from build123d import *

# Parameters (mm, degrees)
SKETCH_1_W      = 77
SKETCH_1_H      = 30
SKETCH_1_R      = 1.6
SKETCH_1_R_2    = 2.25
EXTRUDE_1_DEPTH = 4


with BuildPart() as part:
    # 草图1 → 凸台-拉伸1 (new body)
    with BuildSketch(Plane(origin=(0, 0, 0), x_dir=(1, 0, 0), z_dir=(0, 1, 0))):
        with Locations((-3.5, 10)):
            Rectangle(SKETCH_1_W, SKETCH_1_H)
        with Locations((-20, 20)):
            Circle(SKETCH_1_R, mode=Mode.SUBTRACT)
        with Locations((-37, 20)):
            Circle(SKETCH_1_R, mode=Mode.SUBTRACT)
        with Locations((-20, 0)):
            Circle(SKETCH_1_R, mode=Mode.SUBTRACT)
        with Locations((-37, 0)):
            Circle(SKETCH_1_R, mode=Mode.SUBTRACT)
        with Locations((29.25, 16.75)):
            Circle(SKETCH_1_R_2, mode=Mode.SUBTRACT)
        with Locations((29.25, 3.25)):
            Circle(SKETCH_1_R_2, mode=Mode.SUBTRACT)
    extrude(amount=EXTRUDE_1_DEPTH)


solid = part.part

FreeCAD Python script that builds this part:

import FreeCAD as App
import Part
import Sketcher
from FreeCAD import Vector
Q = App.Units.Quantity

doc = App.newDocument("Part")
body = doc.addObject("PartDesign::Body", "Body")

# Sketch on XZ plane
sketch1 = body.newObject("Sketcher::SketchObject", "Sketch")
sketch1.AttachmentSupport = (doc.getObject("XZ_Plane"), [""])
sketch1.MapMode = "FlatFace"
sketch1.addGeometry([
    Part.LineSegment(Vector(-42, -25, 0), Vector(-42, 5, 0)),  # 0
    Part.LineSegment(Vector(-42, 5, 0), Vector(35, 5, 0)),  # 1
    Part.LineSegment(Vector(35, 5, 0), Vector(35, -25, 0)),  # 2
    Part.LineSegment(Vector(35, -25, 0), Vector(-42, -25, 0)),  # 3
    Part.Circle(Vector(-37, 0, 0), Vector(0, 0, 1), 1.6),  # 4
    Part.Circle(Vector(-20, 0, 0), Vector(0, 0, 1), 1.6),  # 5
    Part.Circle(Vector(29.2, -3.2, 0), Vector(0, 0, 1), 2.2),  # 6
    Part.Circle(Vector(-37, -20, 0), Vector(0, 0, 1), 1.6),  # 7
    Part.Circle(Vector(-20, -20, 0), Vector(0, 0, 1), 1.6),  # 8
    Part.Circle(Vector(29.2, -16.8, 0), Vector(0, 0, 1), 2.2),  # 9
], False)
sketch1.addConstraint([
    Sketcher.Constraint("Coincident", 0, 2, 1, 1),
    Sketcher.Constraint("Coincident", 1, 2, 2, 1),
    Sketcher.Constraint("Coincident", 2, 2, 3, 1),
    Sketcher.Constraint("Coincident", 3, 2, 0, 1),
    Sketcher.Constraint("Vertical", 0),
    Sketcher.Constraint("Horizontal", 1),
    Sketcher.Constraint("Vertical", 2),
    Sketcher.Constraint("Horizontal", 3),
    Sketcher.Constraint("Equal", 4, 5),
    Sketcher.Constraint("Equal", 5, 7),
    Sketcher.Constraint("Equal", 7, 8),
    Sketcher.Constraint("Equal", 6, 9),
    Sketcher.Constraint("PointOnObject", 4, 3, -1),
    Sketcher.Constraint("PointOnObject", 5, 3, -1),
    Sketcher.Constraint("Horizontal", 7, 3, 8, 3),
    Sketcher.Constraint("Vertical", 4, 3, 7, 3),
    Sketcher.Constraint("Vertical", 5, 3, 8, 3),
    Sketcher.Constraint("Vertical", 6, 3, 9, 3),
    Sketcher.Constraint("Diameter", 4, Q("3.2 mm")),
    Sketcher.Constraint("Diameter", 6, Q("4.5 mm")),
    Sketcher.Constraint("DistanceX", 1, 1, 1, 2, Q("77 mm")),
    Sketcher.Constraint("DistanceY", 0, 1, 0, 2, Q("30 mm")),
    Sketcher.Constraint("DistanceX", 4, 3, -1, 1, Q("37 mm")),
    Sketcher.Constraint("DistanceX", 5, 3, -1, 1, Q("20 mm")),
    Sketcher.Constraint("DistanceY", 7, 3, -1, 1, Q("20 mm")),
    Sketcher.Constraint("DistanceX", 0, 2, -1, 1, Q("42 mm")),
    Sketcher.Constraint("DistanceY", -1, 1, 0, 2, Q("5 mm")),
    Sketcher.Constraint("DistanceY", 9, 3, 6, 3, Q("13.5 mm")),
    Sketcher.Constraint("DistanceX", -1, 1, 6, 3, Q("29.25 mm")),
    Sketcher.Constraint("DistanceY", 6, 3, -1, 1, Q("3.25 mm")),
])
pad1 = body.newObject("PartDesign::Pad", "Pad")
pad1.Profile = sketch1
pad1.Length = 4
pad1.Reversed = True

doc.recompute()
